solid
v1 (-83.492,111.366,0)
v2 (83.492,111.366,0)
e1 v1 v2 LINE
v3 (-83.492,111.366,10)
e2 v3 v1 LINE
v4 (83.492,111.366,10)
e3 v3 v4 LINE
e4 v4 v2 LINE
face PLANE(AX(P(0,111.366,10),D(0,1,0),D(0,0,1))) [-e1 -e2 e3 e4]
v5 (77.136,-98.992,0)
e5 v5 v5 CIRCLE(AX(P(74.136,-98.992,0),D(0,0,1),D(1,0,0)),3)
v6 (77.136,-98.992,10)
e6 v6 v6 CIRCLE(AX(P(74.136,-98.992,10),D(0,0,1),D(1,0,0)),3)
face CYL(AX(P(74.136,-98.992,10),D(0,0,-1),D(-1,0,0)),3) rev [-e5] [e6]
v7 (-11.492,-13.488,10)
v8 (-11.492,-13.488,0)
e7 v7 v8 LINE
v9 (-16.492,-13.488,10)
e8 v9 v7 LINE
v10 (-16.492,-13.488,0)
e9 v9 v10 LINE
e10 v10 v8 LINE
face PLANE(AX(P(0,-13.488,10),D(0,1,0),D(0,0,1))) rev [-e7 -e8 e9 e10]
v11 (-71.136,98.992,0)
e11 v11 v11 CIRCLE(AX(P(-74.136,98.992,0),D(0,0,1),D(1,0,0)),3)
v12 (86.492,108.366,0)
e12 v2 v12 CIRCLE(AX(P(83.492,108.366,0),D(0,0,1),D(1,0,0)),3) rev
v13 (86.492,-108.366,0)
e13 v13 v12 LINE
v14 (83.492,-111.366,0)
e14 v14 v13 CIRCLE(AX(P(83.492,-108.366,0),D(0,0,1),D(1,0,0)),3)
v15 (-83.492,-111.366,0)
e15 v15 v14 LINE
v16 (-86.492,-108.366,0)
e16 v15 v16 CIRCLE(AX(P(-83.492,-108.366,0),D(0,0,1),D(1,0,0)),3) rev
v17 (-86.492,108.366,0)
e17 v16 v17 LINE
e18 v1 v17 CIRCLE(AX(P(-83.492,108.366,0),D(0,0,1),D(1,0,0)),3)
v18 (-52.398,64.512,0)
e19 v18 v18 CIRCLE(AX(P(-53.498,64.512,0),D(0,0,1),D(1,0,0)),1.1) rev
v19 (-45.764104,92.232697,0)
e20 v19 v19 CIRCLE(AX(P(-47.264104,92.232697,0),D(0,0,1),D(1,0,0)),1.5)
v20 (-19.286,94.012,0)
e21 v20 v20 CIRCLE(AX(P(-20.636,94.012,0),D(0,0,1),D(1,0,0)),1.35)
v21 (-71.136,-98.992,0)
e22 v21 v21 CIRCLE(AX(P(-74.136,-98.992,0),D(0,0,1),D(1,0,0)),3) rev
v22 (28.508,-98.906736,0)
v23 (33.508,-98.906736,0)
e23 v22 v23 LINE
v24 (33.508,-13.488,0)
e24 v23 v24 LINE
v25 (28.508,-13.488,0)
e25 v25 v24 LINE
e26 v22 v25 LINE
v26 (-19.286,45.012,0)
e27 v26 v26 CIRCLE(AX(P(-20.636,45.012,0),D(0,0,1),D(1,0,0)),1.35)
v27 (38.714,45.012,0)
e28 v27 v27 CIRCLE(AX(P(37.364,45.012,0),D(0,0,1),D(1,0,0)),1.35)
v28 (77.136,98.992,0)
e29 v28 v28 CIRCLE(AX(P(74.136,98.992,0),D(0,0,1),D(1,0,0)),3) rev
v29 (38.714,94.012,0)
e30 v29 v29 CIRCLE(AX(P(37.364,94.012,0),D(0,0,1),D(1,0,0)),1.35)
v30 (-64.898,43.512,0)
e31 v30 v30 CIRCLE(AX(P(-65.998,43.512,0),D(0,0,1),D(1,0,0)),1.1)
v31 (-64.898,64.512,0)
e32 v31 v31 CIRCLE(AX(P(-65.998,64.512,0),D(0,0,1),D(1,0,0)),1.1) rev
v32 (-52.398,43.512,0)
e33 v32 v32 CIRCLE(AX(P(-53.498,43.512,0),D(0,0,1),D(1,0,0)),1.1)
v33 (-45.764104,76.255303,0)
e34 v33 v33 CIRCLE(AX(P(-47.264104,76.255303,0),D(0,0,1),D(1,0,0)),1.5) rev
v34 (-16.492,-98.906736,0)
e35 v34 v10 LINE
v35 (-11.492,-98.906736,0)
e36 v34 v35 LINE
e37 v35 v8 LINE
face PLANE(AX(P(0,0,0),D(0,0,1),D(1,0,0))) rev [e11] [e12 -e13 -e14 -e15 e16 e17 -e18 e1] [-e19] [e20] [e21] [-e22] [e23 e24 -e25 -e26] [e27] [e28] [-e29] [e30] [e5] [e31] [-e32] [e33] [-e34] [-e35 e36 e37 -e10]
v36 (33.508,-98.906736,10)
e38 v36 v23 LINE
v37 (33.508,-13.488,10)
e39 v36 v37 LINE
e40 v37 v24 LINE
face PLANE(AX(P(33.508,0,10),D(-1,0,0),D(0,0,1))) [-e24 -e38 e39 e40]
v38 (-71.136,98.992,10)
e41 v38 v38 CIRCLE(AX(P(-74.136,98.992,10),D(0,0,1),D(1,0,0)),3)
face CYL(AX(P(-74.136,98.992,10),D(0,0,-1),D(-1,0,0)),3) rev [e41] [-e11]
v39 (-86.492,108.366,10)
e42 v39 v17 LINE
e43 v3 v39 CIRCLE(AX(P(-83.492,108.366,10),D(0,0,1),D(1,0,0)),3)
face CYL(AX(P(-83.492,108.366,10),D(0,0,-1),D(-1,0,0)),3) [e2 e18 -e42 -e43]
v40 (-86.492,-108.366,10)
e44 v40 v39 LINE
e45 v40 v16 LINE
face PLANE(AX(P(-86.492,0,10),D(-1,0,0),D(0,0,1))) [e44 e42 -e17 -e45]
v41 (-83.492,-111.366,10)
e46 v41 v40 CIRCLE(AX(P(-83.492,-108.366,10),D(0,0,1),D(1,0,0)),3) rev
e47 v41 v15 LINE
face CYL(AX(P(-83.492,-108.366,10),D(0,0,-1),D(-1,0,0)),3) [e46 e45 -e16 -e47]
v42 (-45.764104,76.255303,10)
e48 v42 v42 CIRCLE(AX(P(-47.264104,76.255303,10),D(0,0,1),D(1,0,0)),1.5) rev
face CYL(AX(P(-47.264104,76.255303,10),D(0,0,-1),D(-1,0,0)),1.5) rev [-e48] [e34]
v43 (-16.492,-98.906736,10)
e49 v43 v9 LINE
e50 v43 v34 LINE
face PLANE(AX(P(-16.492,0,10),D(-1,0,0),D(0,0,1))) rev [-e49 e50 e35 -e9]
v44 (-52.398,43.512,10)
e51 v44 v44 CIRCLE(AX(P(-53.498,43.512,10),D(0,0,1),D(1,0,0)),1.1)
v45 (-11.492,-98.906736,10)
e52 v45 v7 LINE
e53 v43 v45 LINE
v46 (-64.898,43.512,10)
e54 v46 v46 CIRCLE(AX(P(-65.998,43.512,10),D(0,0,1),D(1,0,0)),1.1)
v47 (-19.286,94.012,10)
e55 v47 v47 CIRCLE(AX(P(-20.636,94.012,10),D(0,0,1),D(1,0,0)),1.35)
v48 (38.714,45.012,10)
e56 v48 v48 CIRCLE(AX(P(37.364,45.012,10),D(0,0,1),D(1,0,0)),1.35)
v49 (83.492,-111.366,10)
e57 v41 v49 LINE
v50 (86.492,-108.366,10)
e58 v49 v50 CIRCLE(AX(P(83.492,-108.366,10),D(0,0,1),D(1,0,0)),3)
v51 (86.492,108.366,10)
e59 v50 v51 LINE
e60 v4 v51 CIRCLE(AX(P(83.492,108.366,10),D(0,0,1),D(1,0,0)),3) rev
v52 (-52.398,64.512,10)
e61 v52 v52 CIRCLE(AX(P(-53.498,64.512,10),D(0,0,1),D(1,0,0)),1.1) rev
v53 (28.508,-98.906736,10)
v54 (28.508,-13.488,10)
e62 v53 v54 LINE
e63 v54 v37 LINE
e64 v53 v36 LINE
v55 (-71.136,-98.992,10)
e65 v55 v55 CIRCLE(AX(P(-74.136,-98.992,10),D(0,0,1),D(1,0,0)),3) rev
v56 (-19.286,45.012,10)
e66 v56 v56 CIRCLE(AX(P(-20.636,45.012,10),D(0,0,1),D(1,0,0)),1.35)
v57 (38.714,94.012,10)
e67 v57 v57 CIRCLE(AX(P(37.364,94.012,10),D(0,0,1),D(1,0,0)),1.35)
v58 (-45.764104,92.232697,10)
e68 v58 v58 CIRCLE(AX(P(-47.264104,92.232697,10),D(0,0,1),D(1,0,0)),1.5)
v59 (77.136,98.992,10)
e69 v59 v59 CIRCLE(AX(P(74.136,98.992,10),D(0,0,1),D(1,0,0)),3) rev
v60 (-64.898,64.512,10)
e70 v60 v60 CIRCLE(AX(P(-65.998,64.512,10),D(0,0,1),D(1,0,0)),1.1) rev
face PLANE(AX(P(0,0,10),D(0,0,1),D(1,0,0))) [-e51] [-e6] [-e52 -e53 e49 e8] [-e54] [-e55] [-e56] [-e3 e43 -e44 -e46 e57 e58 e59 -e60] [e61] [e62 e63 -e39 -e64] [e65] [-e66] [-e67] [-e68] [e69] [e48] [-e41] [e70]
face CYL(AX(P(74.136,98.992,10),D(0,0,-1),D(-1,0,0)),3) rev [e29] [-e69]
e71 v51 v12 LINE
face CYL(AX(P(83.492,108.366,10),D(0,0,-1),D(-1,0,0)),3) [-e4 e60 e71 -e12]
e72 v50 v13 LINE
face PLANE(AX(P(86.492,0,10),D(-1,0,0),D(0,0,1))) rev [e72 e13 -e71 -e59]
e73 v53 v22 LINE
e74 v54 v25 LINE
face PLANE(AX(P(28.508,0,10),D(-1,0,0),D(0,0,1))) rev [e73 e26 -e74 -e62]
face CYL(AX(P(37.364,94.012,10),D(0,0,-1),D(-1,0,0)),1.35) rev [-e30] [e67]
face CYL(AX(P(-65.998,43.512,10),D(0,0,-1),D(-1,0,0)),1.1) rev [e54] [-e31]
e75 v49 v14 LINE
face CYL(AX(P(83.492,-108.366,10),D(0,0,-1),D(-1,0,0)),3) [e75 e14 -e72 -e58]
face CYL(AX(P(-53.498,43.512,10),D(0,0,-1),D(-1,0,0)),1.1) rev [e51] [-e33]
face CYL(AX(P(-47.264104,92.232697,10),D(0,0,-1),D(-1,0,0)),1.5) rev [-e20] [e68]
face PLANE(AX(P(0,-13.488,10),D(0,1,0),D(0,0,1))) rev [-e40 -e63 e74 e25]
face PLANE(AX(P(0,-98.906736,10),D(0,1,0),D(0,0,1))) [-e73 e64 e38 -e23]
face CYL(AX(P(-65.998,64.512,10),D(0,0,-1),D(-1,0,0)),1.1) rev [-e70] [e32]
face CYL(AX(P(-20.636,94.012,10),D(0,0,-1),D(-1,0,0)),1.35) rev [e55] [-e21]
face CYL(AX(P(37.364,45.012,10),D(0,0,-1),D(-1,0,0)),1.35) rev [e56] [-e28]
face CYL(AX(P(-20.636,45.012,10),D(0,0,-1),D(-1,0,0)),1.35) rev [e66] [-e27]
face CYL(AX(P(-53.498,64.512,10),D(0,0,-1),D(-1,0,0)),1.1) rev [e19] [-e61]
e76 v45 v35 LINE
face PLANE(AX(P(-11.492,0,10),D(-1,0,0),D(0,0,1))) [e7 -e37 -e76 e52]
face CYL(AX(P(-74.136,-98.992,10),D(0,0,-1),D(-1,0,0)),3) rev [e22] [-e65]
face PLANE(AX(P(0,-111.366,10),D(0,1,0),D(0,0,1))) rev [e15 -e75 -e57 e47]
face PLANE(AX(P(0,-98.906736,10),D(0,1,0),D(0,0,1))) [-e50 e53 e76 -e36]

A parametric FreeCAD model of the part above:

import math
import FreeCAD as App
import Part
import Sketcher
Q = App.Units.Quantity

doc = App.newDocument("Part")
body = doc.addObject("PartDesign::Body", "Body")

sketch1 = doc.addObject("Sketcher::SketchObject", "Sketch")
body.addObject(sketch1)
sketch1.AttachmentSupport = (doc.XY_Plane, [""])
sketch1.MapMode = "FlatFace"
sketch1.addGeometry(Part.ArcOfCircle(Part.Circle(App.Vector(83.5, 108.4, 0), App.Vector(0, 0, 1), 3), math.radians(0), math.radians(90)), False)
sketch1.addGeometry(Part.LineSegment(App.Vector(83.5, 111.4, 0), App.Vector(-83.5, 111.4, 0)), False)
sketch1.addGeometry(Part.ArcOfCircle(Part.Circle(App.Vector(-83.5, 108.4, 0), App.Vector(0, 0, 1), 3), math.radians(90), math.radians(180)), False)
sketch1.addGeometry(Part.LineSegment(App.Vector(-86.5, 108.4, 0), App.Vector(-86.5, -108.4, 0)), False)
sketch1.addGeometry(Part.ArcOfCircle(Part.Circle(App.Vector(-83.5, -108.4, 0), App.Vector(0, 0, 1), 3), math.radians(180), math.radians(270)), False)
sketch1.addGeometry(Part.LineSegment(App.Vector(-83.5, -111.4, 0), App.Vector(83.5, -111.4, 0)), False)
sketch1.addGeometry(Part.ArcOfCircle(Part.Circle(App.Vector(83.5, -108.4, 0), App.Vector(0, 0, 1), 3), math.radians(-90), math.radians(0)), False)
sketch1.addGeometry(Part.LineSegment(App.Vector(86.5, -108.4, 0), App.Vector(86.5, 108.4, 0)), False)
sketch1.addGeometry(Part.Circle(App.Vector(74.1, -99, 0), App.Vector(0, 0, 1), 3), False)
sketch1.addGeometry(Part.LineSegment(App.Vector(28.5, -98.9, 0), App.Vector(28.5, -13.5, 0)), False)
sketch1.addGeometry(Part.LineSegment(App.Vector(28.5, -13.5, 0), App.Vector(33.5, -13.5, 0)), False)
sketch1.addGeometry(Part.LineSegment(App.Vector(33.5, -13.5, 0), App.Vector(33.5, -98.9, 0)), False)
sketch1.addGeometry(Part.LineSegment(App.Vector(33.5, -98.9, 0), App.Vector(28.5, -98.9, 0)), False)
sketch1.addGeometry(Part.LineSegment(App.Vector(-16.5, -98.9, 0), App.Vector(-16.5, -13.5, 0)), False)
sketch1.addGeometry(Part.LineSegment(App.Vector(-16.5, -13.5, 0), App.Vector(-11.5, -13.5, 0)), False)
sketch1.addGeometry(Part.LineSegment(App.Vector(-11.5, -13.5, 0), App.Vector(-11.5, -98.9, 0)), False)
sketch1.addGeometry(Part.LineSegment(App.Vector(-11.5, -98.9, 0), App.Vector(-16.5, -98.9, 0)), False)
sketch1.addGeometry(Part.Circle(App.Vector(-74.1, -99, 0), App.Vector(0, 0, 1), 3), False)
sketch1.addGeometry(Part.Circle(App.Vector(37.4, 45, 0), App.Vector(0, 0, 1), 1.4), False)
sketch1.addGeometry(Part.Circle(App.Vector(74.1, 99, 0), App.Vector(0, 0, 1), 3), False)
sketch1.addGeometry(Part.Circle(App.Vector(37.4, 94, 0), App.Vector(0, 0, 1), 1.4), False)
sketch1.addGeometry(Part.Circle(App.Vector(-20.6, 45, 0), App.Vector(0, 0, 1), 1.4), False)
sketch1.addGeometry(Part.Circle(App.Vector(-53.5, 43.5, 0), App.Vector(0, 0, 1), 1.1), False)
sketch1.addGeometry(Part.Circle(App.Vector(-66, 43.5, 0), App.Vector(0, 0, 1), 1.1), False)
sketch1.addGeometry(Part.Circle(App.Vector(-20.6, 94, 0), App.Vector(0, 0, 1), 1.4), False)
sketch1.addGeometry(Part.Circle(App.Vector(-47.3, 76.3, 0), App.Vector(0, 0, 1), 1.5), False)
sketch1.addGeometry(Part.Circle(App.Vector(-53.5, 64.5, 0), App.Vector(0, 0, 1), 1.1), False)
sketch1.addGeometry(Part.Circle(App.Vector(-66, 64.5, 0), App.Vector(0, 0, 1), 1.1), False)
sketch1.addGeometry(Part.Circle(App.Vector(-47.3, 92.2, 0), App.Vector(0, 0, 1), 1.5), False)
sketch1.addGeometry(Part.Circle(App.Vector(-74.1, 99, 0), App.Vector(0, 0, 1), 3), False)
sketch1.addConstraint(Sketcher.Constraint("Tangent", 0, 2, 1, 1))
sketch1.addConstraint(Sketcher.Constraint("Tangent", 1, 2, 2, 1))
sketch1.addConstraint(Sketcher.Constraint("Tangent", 2, 2, 3, 1))
sketch1.addConstraint(Sketcher.Constraint("Tangent", 3, 2, 4, 1))
sketch1.addConstraint(Sketcher.Constraint("Tangent", 4, 2, 5, 1))
sketch1.addConstraint(Sketcher.Constraint("Tangent", 5, 2, 6, 1))
sketch1.addConstraint(Sketcher.Constraint("Tangent", 6, 2, 7, 1))
sketch1.addConstraint(Sketcher.Constraint("Tangent", 7, 2, 0, 1))
sketch1.addConstraint(Sketcher.Constraint("Coincident", 9, 2, 10, 1))
sketch1.addConstraint(Sketcher.Constraint("Coincident", 10, 2, 11, 1))
sketch1.addConstraint(Sketcher.Constraint("Coincident", 11, 2, 12, 1))
sketch1.addConstraint(Sketcher.Constraint("Coincident", 12, 2, 9, 1))
sketch1.addConstraint(Sketcher.Constraint("Coincident", 13, 2, 14, 1))
sketch1.addConstraint(Sketcher.Constraint("Coincident", 14, 2, 15, 1))
sketch1.addConstraint(Sketcher.Constraint("Coincident", 15, 2, 16, 1))
sketch1.addConstraint(Sketcher.Constraint("Coincident", 16, 2, 13, 1))
sketch1.addConstraint(Sketcher.Constraint("Horizontal", 1))
sketch1.addConstraint(Sketcher.Constraint("Vertical", 3))
sketch1.addConstraint(Sketcher.Constraint("Horizontal", 5))
sketch1.addConstraint(Sketcher.Constraint("Vertical", 7))
sketch1.addConstraint(Sketcher.Constraint("Vertical", 9))
sketch1.addConstraint(Sketcher.Constraint("Horizontal", 10))
sketch1.addConstraint(Sketcher.Constraint("Vertical", 11))
sketch1.addConstraint(Sketcher.Constraint("Horizontal", 12))
sketch1.addConstraint(Sketcher.Constraint("Vertical", 13))
sketch1.addConstraint(Sketcher.Constraint("Horizontal", 14))
sketch1.addConstraint(Sketcher.Constraint("Vertical", 15))
sketch1.addConstraint(Sketcher.Constraint("Horizontal", 16))
sketch1.addConstraint(Sketcher.Constraint("Equal", 0, 2))
sketch1.addConstraint(Sketcher.Constraint("Equal", 2, 4))
sketch1.addConstraint(Sketcher.Constraint("Equal", 4, 6))
sketch1.addConstraint(Sketcher.Constraint("Equal", 6, 8))
sketch1.addConstraint(Sketcher.Constraint("Equal", 8, 17))
sketch1.addConstraint(Sketcher.Constraint("Equal", 17, 19))
sketch1.addConstraint(Sketcher.Constraint("Equal", 18, 20))
sketch1.addConstraint(Sketcher.Constraint("Equal", 20, 21))
sketch1.addConstraint(Sketcher.Constraint("Equal", 22, 23))
sketch1.addConstraint(Sketcher.Constraint("Equal", 21, 24))
sketch1.addConstraint(Sketcher.Constraint("Equal", 23, 26))
sketch1.addConstraint(Sketcher.Constraint("Equal", 26, 27))
sketch1.addConstraint(Sketcher.Constraint("Equal", 25, 28))
sketch1.addConstraint(Sketcher.Constraint("Equal", 19, 29))
sketch1.addConstraint(Sketcher.Constraint("Symmetric", 0, 3, 4, 3, -1, 1))
sketch1.addConstraint(Sketcher.Constraint("Symmetric", 17, 3, 19, 3, -1, 1))
sketch1.addConstraint(Sketcher.Constraint("Symmetric", 8, 3, 29, 3, -1, 1))
sketch1.addConstraint(Sketcher.Constraint("Symmetric", 8, 3, 17, 3, -2))
sketch1.addConstraint(Sketcher.Constraint("Horizontal", 18, 3, 21, 3))
sketch1.addConstraint(Sketcher.Constraint("Horizontal", 22, 3, 23, 3))
sketch1.addConstraint(Sketcher.Constraint("Horizontal", 20, 3, 24, 3))
sketch1.addConstraint(Sketcher.Constraint("Horizontal", 26, 3, 27, 3))
sketch1.addConstraint(Sketcher.Constraint("Horizontal", 10, 2, 13, 2))
sketch1.addConstraint(Sketcher.Constraint("Horizontal", 12, 2, 15, 2))
sketch1.addConstraint(Sketcher.Constraint("Vertical", 18, 3, 20, 3))
sketch1.addConstraint(Sketcher.Constraint("Vertical", 21, 3, 24, 3))
sketch1.addConstraint(Sketcher.Constraint("Vertical", 22, 3, 26, 3))
sketch1.addConstraint(Sketcher.Constraint("Vertical", 23, 3, 27, 3))
sketch1.addConstraint(Sketcher.Constraint("Vertical", 25, 3, 28, 3))
sketch1.addConstraint(Sketcher.Constraint("Equal", 12, 14))
sketch1.addConstraint(Sketcher.Constraint("Diameter", 8, Q("6 mm")))
sketch1.addConstraint(Sketcher.Constraint("Diameter", 25, Q("3 mm")))
sketch1.addConstraint(Sketcher.Constraint("Diameter", 18, Q("2.7 mm")))
sketch1.addConstraint(Sketcher.Constraint("Diameter", 22, Q("2.2 mm")))
sketch1.addConstraint(Sketcher.Constraint("DistanceX", 10, 1, 10, 2, Q("5 mm")))
sketch1.addConstraint(Sketcher.Constraint("DistanceY", 18, 3, 20, 3, Q("49 mm")))
sketch1.addConstraint(Sketcher.Constraint("DistanceX", 21, 3, 18, 3, Q("58 mm")))
sketch1.addConstraint(Sketcher.Constraint("DistanceY", 22, 3, 26, 3, Q("21 mm")))
sketch1.addConstraint(Sketcher.Constraint("DistanceY", 9, 2, 22, 3, Q("57 mm")))
sketch1.addConstraint(Sketcher.Constraint("DistanceX", 13, 2, 9, 2, Q("45 mm")))
sketch1.addConstraint(Sketcher.Constraint("DistanceX", 4, 3, 15, 2, Q("72 mm")))
sketch1.addConstraint(Sketcher.Constraint("DistanceX", 17, 3, 18, 3, Q("111.5 mm")))
sketch1.addConstraint(Sketcher.Constraint("DistanceY", 22, 3, 21, 3, Q("1.5 mm")))
sketch1.addConstraint(Sketcher.Constraint("DistanceX", 23, 3, 22, 3, Q("12.5 mm")))
sketch1.addConstraint(Sketcher.Constraint("DistanceX", 1, 2, 1, 1, Q("166.984 mm")))
sketch1.addConstraint(Sketcher.Constraint("DistanceY", 3, 2, 3, 1, Q("216.732 mm")))
sketch1.addConstraint(Sketcher.Constraint("DistanceY", 18, 3, 19, 3, Q("53.98 mm")))
sketch1.addConstraint(Sketcher.Constraint("DistanceX", -1, 1, 8, 3, Q("74.136 mm")))
sketch1.addConstraint(Sketcher.Constraint("DistanceY", 8, 3, -1, 1, Q("98.992 mm")))
sketch1.addConstraint(Sketcher.Constraint("DistanceX", 22, 3, -1, 1, Q("53.498 mm")))
sketch1.addConstraint(Sketcher.Constraint("DistanceY", 9, 1, 9, 2, Q("85.418736 mm")))
sketch1.addConstraint(Sketcher.Constraint("DistanceX", 25, 3, -1, 1, Q("47.264104 mm")))
sketch1.addConstraint(Sketcher.Constraint("DistanceY", -1, 1, 25, 3, Q("76.255303 mm")))
sketch1.addConstraint(Sketcher.Constraint("DistanceY", -1, 1, 28, 3, Q("92.232697 mm")))
pad1 = doc.addObject("PartDesign::Pad", "Pad")
body.addObject(pad1)
pad1.Profile = sketch1
pad1.Length = 10

doc.recompute()
